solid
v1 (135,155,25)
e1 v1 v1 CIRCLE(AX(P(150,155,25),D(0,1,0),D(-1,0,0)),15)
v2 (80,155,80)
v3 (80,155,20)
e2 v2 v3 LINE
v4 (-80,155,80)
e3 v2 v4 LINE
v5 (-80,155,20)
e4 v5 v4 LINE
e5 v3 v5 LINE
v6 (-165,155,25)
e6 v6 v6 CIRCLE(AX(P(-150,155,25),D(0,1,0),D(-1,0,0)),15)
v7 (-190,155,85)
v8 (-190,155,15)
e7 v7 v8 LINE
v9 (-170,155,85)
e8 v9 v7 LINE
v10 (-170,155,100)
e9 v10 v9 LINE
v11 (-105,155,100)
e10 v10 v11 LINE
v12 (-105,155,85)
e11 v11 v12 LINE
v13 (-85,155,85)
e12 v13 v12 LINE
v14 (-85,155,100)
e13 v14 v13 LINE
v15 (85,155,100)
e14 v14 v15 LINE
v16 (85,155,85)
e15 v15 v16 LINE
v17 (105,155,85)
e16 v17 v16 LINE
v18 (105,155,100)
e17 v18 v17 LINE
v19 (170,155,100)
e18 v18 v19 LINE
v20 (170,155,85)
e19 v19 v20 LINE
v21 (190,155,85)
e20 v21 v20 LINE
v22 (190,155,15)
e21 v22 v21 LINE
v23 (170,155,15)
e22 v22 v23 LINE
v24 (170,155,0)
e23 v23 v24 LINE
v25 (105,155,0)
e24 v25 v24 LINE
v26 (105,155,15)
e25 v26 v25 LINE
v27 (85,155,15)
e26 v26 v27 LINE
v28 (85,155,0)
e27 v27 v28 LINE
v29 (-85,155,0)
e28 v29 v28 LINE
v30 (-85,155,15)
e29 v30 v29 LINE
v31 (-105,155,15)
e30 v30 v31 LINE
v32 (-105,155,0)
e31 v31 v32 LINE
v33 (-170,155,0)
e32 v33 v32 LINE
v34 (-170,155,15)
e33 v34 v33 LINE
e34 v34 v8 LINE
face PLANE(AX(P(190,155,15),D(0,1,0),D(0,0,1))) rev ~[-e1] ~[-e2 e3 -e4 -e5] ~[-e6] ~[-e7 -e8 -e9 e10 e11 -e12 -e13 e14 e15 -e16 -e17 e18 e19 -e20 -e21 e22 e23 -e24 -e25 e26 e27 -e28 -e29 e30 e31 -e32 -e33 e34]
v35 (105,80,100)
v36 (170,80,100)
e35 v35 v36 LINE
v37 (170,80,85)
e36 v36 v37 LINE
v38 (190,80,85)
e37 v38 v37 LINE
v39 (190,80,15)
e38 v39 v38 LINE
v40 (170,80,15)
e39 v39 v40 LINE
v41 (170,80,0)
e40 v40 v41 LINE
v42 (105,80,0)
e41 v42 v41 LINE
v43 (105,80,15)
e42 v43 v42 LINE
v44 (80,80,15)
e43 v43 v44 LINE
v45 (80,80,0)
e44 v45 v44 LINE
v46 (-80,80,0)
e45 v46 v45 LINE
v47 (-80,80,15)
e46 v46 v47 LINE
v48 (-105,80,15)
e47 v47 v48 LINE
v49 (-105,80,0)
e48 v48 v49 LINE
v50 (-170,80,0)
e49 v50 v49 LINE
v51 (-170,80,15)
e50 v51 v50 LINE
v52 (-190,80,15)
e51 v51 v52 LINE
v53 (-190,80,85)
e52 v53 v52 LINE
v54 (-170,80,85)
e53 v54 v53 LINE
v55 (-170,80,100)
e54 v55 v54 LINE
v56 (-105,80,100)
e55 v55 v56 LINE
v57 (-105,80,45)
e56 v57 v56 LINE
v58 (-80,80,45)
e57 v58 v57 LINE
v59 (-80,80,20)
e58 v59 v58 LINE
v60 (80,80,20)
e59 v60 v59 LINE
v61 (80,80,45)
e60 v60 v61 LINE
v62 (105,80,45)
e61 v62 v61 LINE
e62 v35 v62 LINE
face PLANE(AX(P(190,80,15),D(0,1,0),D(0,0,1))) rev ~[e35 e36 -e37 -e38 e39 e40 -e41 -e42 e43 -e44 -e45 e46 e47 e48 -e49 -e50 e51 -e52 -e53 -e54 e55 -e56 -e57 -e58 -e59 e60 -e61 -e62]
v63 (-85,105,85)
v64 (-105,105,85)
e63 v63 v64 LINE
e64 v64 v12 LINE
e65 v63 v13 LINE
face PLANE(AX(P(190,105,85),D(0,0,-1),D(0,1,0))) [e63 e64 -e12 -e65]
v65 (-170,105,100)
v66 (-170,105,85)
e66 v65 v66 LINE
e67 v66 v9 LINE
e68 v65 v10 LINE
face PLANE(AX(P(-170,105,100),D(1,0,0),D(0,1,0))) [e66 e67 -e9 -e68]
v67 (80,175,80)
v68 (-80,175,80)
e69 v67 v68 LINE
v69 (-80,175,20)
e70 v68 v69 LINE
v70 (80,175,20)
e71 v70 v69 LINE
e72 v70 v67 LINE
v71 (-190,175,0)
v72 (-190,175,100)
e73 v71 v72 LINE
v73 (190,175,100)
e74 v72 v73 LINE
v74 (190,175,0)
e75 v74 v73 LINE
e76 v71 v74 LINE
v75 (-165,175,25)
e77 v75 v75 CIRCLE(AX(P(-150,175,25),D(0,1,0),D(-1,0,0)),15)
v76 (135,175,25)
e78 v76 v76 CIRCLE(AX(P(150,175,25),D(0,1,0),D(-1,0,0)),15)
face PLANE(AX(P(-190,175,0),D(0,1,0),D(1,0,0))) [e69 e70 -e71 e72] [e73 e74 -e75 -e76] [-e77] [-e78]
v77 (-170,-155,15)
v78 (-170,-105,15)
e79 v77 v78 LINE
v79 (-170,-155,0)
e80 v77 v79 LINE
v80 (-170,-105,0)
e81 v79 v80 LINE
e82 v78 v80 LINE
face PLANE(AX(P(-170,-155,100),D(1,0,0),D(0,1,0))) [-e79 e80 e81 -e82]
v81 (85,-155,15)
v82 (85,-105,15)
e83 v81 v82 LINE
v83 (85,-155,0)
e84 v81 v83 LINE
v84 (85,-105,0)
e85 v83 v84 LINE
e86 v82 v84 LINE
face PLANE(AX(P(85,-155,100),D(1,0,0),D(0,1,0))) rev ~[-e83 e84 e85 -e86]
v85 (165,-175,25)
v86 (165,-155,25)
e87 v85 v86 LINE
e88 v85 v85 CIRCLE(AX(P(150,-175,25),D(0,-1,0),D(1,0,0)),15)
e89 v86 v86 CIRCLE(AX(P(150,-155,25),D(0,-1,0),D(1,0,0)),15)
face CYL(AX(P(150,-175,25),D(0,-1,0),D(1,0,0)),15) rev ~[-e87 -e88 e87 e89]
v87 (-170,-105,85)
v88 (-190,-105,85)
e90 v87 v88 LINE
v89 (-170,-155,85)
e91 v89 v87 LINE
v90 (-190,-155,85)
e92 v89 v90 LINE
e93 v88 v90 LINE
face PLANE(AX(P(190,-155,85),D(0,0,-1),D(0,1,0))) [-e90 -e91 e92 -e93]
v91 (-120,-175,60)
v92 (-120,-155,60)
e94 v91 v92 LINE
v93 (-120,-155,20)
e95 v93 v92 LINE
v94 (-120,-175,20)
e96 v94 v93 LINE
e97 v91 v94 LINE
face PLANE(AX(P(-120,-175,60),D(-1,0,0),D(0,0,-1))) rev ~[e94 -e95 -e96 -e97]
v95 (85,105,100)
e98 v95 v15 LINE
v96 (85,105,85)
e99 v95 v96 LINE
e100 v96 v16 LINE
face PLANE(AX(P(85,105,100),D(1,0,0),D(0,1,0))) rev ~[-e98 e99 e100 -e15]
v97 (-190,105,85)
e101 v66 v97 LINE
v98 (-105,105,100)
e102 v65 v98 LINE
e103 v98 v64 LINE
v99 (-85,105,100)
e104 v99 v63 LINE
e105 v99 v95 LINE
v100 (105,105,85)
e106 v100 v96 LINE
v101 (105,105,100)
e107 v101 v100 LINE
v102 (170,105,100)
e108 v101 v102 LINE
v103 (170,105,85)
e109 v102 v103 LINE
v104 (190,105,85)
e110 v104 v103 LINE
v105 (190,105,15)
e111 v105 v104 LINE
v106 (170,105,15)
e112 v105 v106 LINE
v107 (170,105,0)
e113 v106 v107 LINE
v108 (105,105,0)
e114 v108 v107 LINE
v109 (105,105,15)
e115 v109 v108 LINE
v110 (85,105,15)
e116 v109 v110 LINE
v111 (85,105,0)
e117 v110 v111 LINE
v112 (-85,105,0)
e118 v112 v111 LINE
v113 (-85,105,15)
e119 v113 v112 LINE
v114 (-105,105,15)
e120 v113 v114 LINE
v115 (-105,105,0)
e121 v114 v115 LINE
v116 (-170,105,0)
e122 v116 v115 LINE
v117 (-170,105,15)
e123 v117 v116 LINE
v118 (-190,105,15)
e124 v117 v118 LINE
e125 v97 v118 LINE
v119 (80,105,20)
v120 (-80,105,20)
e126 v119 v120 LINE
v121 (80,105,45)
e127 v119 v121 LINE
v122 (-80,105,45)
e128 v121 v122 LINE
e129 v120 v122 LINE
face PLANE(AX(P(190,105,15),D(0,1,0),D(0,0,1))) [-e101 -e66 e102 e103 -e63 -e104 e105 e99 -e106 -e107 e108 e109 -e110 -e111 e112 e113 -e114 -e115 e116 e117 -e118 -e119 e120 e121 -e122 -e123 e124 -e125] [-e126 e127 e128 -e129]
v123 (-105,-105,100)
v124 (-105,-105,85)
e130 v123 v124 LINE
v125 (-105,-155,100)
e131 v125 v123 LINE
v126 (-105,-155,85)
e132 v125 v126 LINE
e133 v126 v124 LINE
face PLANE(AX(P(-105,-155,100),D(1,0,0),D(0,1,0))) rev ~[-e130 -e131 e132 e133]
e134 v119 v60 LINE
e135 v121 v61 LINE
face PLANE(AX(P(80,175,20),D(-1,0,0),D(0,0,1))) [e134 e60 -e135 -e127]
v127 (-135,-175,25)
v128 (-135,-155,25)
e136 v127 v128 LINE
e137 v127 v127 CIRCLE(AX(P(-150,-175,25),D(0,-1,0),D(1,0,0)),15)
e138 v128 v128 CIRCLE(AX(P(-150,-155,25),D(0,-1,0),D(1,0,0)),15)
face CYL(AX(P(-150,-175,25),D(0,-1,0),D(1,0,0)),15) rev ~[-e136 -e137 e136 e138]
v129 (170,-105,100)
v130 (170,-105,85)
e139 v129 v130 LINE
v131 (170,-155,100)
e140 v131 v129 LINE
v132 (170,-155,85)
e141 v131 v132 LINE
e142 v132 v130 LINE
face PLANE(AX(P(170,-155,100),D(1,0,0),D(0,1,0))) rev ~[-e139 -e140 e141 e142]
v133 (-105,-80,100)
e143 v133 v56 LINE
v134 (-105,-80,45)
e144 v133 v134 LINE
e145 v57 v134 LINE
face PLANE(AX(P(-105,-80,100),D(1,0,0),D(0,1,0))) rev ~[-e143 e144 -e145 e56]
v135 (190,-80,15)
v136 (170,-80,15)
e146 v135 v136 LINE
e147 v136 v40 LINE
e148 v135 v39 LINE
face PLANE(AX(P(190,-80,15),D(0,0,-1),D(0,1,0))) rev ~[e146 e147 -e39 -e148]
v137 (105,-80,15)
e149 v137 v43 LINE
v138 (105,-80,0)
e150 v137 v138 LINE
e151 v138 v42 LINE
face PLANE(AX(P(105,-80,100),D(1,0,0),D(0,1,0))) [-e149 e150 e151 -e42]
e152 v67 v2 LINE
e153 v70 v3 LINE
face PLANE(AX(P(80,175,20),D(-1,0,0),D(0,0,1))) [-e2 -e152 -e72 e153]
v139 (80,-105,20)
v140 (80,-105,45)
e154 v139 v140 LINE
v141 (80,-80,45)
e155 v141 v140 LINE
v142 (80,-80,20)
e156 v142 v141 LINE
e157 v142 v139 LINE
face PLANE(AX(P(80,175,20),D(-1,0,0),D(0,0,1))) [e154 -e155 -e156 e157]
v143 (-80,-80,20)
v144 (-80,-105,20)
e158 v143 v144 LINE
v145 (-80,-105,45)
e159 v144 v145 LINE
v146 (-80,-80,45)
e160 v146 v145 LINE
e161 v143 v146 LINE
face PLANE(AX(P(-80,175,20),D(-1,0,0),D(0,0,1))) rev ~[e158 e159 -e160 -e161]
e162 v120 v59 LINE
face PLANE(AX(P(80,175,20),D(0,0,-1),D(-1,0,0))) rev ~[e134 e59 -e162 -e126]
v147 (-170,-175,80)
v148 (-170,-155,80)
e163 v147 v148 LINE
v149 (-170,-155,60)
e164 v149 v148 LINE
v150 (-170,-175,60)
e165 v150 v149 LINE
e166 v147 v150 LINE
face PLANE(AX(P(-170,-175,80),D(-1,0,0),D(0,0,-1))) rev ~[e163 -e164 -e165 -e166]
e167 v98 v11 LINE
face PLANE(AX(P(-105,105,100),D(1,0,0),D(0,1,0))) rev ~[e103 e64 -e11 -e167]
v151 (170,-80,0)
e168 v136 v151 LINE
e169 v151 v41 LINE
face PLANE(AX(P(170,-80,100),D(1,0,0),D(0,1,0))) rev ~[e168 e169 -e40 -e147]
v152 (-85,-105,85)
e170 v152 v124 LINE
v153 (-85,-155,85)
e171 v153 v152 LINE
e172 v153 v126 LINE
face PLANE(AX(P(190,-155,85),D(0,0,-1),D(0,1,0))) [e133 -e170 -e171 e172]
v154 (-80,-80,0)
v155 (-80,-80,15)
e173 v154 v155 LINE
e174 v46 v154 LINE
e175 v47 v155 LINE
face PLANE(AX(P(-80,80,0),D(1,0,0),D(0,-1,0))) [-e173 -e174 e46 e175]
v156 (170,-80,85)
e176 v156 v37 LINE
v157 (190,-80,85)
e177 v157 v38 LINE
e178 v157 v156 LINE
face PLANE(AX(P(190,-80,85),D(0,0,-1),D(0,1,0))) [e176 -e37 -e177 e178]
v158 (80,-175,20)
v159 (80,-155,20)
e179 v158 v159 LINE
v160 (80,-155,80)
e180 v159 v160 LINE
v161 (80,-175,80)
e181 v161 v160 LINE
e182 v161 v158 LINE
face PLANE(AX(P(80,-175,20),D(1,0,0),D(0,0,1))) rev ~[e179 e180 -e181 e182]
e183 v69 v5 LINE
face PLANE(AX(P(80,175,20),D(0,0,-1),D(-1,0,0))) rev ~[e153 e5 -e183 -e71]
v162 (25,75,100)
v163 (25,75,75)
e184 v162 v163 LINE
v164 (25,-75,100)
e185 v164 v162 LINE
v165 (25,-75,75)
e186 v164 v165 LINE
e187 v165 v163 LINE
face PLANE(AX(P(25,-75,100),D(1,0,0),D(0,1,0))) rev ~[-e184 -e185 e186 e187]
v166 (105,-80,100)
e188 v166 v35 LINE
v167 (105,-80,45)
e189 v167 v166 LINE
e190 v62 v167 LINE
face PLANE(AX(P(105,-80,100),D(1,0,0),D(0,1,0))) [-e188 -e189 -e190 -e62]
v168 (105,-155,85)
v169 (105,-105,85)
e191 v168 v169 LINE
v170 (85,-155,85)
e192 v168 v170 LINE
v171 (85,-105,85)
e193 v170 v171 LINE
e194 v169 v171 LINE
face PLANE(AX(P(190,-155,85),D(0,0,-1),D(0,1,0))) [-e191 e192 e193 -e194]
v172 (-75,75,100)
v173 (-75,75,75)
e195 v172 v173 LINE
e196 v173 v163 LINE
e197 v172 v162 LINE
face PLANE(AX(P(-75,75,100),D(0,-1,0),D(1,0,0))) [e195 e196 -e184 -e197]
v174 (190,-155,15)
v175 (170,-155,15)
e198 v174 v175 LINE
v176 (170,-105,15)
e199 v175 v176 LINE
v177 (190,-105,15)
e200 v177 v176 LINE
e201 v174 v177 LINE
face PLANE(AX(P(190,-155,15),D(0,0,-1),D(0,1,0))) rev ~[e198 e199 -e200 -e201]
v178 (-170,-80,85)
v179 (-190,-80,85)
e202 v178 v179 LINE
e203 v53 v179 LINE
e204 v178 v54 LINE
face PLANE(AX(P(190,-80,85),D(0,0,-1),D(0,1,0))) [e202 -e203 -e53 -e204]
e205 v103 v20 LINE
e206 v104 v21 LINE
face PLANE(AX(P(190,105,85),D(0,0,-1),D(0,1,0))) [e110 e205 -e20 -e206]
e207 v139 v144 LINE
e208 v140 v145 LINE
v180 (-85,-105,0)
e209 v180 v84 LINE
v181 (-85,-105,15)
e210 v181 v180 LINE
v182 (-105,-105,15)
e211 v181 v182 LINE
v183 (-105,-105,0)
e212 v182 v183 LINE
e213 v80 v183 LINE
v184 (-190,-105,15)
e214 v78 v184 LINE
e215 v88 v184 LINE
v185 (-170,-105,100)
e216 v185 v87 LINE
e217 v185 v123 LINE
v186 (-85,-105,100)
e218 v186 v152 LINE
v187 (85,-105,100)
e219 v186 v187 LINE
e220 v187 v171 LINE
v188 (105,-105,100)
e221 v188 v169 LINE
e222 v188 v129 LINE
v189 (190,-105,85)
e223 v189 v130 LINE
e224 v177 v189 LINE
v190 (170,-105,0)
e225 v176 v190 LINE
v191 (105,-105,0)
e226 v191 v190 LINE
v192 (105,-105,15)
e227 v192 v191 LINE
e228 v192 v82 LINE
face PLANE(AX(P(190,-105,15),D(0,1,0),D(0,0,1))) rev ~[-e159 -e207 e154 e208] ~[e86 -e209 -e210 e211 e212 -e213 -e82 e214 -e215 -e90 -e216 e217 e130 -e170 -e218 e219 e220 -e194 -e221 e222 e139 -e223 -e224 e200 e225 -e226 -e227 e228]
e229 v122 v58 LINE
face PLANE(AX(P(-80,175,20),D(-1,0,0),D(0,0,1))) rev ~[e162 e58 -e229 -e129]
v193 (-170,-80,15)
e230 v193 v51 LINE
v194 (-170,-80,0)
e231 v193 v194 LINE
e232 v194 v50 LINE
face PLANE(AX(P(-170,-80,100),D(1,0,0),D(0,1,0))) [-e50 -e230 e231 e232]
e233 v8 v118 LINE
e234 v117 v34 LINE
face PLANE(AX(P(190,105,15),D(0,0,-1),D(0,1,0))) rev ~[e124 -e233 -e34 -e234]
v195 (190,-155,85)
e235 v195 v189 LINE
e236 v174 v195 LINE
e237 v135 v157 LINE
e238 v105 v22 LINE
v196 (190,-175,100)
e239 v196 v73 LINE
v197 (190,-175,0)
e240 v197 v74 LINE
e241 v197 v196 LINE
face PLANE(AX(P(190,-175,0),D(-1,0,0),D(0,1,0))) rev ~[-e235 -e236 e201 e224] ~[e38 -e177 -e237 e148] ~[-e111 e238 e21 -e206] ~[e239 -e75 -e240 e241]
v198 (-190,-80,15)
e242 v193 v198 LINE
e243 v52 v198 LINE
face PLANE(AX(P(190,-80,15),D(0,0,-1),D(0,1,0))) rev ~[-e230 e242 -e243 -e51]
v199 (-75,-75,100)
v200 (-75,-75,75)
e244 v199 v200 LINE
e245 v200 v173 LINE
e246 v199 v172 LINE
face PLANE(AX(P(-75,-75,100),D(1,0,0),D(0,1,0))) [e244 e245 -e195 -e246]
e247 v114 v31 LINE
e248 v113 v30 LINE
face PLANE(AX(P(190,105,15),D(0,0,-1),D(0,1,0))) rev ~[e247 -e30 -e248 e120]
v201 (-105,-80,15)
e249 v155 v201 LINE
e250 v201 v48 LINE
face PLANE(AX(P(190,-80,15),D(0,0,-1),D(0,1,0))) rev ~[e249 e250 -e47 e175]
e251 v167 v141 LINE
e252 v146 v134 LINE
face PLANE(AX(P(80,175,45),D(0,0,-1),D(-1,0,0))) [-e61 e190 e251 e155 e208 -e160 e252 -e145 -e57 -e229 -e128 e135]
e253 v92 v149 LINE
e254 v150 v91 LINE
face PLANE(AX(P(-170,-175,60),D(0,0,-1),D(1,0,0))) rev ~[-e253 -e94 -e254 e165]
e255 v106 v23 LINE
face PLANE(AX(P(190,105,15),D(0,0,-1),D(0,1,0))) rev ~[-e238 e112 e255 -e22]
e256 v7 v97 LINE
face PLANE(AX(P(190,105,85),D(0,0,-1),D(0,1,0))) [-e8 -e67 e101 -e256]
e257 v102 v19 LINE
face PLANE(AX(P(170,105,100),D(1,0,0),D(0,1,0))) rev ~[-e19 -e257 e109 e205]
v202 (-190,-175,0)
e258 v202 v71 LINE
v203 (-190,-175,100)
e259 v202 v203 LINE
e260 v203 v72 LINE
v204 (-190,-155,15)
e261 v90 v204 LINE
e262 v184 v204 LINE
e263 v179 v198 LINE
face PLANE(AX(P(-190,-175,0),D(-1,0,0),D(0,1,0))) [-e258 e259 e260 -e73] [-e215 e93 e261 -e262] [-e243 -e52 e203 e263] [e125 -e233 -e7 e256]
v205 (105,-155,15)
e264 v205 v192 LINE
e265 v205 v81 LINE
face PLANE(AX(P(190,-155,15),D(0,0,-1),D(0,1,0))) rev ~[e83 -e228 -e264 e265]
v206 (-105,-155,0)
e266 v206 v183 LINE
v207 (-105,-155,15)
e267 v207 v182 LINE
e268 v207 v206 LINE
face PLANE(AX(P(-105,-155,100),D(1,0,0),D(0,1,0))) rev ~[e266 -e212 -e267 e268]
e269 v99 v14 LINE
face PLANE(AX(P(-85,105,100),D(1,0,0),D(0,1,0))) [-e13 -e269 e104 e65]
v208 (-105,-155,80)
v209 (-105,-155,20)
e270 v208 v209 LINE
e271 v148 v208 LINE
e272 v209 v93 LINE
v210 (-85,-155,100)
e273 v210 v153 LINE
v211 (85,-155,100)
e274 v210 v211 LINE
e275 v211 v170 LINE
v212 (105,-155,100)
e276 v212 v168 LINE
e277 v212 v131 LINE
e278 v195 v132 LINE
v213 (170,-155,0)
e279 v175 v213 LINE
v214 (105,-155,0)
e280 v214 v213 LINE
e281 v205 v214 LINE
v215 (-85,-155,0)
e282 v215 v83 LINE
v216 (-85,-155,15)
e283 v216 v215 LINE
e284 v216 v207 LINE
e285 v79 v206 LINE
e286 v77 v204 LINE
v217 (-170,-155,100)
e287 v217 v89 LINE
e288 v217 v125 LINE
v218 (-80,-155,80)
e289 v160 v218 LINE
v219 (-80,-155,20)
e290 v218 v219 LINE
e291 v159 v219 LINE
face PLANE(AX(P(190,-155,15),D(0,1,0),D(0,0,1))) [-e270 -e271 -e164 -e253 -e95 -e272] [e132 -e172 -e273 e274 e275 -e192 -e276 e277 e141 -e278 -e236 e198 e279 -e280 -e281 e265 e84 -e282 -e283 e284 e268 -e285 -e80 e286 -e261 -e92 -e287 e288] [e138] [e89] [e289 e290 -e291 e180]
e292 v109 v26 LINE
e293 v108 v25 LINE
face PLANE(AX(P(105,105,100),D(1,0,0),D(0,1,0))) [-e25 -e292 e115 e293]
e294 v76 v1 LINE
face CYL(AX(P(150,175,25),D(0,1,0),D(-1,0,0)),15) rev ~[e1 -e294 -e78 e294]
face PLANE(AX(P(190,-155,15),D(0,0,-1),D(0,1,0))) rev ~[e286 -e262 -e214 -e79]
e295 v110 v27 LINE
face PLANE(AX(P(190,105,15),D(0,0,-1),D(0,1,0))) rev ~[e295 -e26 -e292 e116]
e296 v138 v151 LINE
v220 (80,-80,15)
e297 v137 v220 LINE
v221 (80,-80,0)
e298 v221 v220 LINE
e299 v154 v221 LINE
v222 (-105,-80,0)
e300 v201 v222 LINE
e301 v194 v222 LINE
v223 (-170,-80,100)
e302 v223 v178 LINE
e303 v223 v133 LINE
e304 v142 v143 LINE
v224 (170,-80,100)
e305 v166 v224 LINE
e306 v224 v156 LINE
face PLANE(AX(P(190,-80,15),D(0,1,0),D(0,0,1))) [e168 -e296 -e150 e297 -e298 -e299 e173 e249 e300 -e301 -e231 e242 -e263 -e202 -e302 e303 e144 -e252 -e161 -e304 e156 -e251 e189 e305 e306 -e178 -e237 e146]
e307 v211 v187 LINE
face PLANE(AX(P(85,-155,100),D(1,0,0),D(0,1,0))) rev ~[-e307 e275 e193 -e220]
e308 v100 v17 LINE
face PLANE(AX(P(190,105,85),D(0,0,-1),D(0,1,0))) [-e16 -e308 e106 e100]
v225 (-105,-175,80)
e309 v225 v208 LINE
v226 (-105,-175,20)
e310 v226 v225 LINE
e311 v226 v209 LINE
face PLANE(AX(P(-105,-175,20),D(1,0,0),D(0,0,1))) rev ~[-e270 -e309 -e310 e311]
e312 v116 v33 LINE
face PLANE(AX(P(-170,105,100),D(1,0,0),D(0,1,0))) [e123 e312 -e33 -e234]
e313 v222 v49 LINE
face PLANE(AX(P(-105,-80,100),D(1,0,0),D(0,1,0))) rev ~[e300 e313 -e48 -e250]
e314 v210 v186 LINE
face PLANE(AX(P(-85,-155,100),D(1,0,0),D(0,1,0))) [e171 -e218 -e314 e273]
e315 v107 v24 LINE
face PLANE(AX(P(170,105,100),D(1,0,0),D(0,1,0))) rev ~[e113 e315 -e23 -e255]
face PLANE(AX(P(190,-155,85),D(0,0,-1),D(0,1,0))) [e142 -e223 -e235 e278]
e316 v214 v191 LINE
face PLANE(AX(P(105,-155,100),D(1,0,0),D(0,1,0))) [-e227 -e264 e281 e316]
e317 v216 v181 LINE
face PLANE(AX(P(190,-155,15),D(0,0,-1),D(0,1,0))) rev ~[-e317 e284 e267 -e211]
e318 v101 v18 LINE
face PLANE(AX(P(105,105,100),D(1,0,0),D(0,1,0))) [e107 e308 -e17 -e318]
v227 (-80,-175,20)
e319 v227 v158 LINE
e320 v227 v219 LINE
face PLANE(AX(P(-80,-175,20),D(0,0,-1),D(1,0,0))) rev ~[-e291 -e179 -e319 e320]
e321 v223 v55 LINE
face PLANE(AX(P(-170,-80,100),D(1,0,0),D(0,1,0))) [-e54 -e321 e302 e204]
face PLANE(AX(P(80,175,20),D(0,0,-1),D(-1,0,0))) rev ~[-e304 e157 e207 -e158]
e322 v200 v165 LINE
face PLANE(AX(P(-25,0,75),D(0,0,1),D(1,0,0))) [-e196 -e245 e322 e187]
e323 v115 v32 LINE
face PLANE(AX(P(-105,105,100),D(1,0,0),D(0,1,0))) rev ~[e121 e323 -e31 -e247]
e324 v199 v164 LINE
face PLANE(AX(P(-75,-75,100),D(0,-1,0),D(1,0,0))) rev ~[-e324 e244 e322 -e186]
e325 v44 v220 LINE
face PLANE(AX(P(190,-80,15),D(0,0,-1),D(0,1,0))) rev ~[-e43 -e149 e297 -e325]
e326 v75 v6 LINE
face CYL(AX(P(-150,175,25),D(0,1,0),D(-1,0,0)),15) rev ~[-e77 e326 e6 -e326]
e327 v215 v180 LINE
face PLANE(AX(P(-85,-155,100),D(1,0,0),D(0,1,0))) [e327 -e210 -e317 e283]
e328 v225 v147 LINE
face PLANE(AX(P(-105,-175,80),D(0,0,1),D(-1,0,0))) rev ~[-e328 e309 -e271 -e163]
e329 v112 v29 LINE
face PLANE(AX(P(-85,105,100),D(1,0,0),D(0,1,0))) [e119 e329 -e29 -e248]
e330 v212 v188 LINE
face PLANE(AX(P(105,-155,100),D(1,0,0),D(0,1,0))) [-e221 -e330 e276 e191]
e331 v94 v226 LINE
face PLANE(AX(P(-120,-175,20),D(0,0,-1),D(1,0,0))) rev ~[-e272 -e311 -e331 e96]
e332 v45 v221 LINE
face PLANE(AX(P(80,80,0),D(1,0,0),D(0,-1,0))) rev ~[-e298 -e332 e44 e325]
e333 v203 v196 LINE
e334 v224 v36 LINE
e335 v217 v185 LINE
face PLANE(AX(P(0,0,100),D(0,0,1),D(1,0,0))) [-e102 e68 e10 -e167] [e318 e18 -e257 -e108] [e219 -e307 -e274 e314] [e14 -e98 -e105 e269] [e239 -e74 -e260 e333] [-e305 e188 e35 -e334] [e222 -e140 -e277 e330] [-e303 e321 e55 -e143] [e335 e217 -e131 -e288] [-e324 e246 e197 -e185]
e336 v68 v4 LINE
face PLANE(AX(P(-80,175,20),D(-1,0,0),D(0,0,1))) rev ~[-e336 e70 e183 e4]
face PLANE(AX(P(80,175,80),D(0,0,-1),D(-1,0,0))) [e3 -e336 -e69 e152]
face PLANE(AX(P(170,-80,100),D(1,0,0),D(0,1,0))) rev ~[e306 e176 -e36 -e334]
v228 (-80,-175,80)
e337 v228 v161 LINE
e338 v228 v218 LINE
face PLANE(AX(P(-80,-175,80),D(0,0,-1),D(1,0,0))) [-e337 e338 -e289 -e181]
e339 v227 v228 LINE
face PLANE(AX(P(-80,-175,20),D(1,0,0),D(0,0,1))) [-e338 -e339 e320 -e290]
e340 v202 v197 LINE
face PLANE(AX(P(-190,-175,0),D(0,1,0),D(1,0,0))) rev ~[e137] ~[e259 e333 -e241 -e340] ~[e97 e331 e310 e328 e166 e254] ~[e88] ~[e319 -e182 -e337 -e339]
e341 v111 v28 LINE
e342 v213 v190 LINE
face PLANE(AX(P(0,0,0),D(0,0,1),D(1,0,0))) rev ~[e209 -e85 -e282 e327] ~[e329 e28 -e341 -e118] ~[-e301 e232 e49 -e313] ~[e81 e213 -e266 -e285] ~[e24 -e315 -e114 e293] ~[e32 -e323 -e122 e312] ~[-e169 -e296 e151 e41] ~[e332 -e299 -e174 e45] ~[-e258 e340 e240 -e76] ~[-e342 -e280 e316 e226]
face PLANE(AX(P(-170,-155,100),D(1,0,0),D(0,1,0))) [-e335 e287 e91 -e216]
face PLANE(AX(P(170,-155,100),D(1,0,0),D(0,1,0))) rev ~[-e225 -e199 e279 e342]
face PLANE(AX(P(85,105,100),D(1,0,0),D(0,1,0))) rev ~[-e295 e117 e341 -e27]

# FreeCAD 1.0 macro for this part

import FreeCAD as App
import Part
import Sketcher

doc = App.newDocument("Part")
body = doc.addObject("PartDesign::Body", "Body")

# Sketch on XY plane
sketch1 = doc.addObject("Sketcher::SketchObject", "Sketch")
body.addObject(sketch1)
sketch1.AttachmentSupport = (doc.XY_Plane, [""])
sketch1.MapMode = "FlatFace"
sketch1.addGeometry(Part.LineSegment(App.Vector(-190, 175, 0), App.Vector(-190, -175, 0)), False)
sketch1.addGeometry(Part.LineSegment(App.Vector(-190, -175, 0), App.Vector(190, -175, 0)), False)
sketch1.addGeometry(Part.LineSegment(App.Vector(190, -175, 0), App.Vector(190, 175, 0)), False)
sketch1.addGeometry(Part.LineSegment(App.Vector(190, 175, 0), App.Vector(-190, 175, 0)), False)
sketch1.addConstraint(Sketcher.Constraint("Coincident", 0, 2, 1, 1))
sketch1.addConstraint(Sketcher.Constraint("Coincident", 1, 2, 2, 1))
sketch1.addConstraint(Sketcher.Constraint("Coincident", 2, 2, 3, 1))
sketch1.addConstraint(Sketcher.Constraint("Coincident", 3, 2, 0, 1))
sketch1.addConstraint(Sketcher.Constraint("Vertical", 0))
sketch1.addConstraint(Sketcher.Constraint("Horizontal", 1))
sketch1.addConstraint(Sketcher.Constraint("Vertical", 2))
sketch1.addConstraint(Sketcher.Constraint("Horizontal", 3))
sketch1.addConstraint(Sketcher.Constraint("Symmetric", 0, 2, 2, 2, -1, 1))
sketch1.addConstraint(Sketcher.Constraint("DistanceX", 1, 1, 1, 2, 380.0))
sketch1.addConstraint(Sketcher.Constraint("DistanceY", 0, 2, 0, 1, 350.0))
pad1 = doc.addObject("PartDesign::Pad", "Pad")
body.addObject(pad1)
pad1.Profile = sketch1
pad1.Length = 100

# Sketch on XY plane
sketch2 = doc.addObject("Sketcher::SketchObject", "Sketch001")
body.addObject(sketch2)
sketch2.AttachmentSupport = (doc.XY_Plane, [""])
sketch2.MapMode = "FlatFace"
sketch2.AttachmentOffset = App.Placement(App.Vector(0, 0, 100), App.Rotation())
sketch2.addGeometry(Part.LineSegment(App.Vector(-85, 155, 0), App.Vector(-85, 105, 0)), False)
sketch2.addGeometry(Part.LineSegment(App.Vector(-85, 105, 0), App.Vector(85, 105, 0)), False)
sketch2.addGeometry(Part.LineSegment(App.Vector(85, 105, 0), App.Vector(85, 155, 0)), False)
sketch2.addGeometry(Part.LineSegment(App.Vector(85, 155, 0), App.Vector(-85, 155, 0)), False)
sketch2.addGeometry(Part.LineSegment(App.Vector(105, 155, 0), App.Vector(105, 105, 0)), False)
sketch2.addGeometry(Part.LineSegment(App.Vector(105, 105, 0), App.Vector(170, 105, 0)), False)
sketch2.addGeometry(Part.LineSegment(App.Vector(170, 105, 0), App.Vector(170, 155, 0)), False)
sketch2.addGeometry(Part.LineSegment(App.Vector(170, 155, 0), App.Vector(105, 155, 0)), False)
sketch2.addGeometry(Part.LineSegment(App.Vector(105, 80, 0), App.Vector(105, -80, 0)), False)
sketch2.addGeometry(Part.LineSegment(App.Vector(105, -80, 0), App.Vector(170, -80, 0)), False)
sketch2.addGeometry(Part.LineSegment(App.Vector(170, -80, 0), App.Vector(170, 80, 0)), False)
sketch2.addGeometry(Part.LineSegment(App.Vector(170, 80, 0), App.Vector(105, 80, 0)), False)
sketch2.addGeometry(Part.LineSegment(App.Vector(105, -105, 0), App.Vector(105, -155, 0)), False)
sketch2.addGeometry(Part.LineSegment(App.Vector(105, -155, 0), App.Vector(170, -155, 0)), False)
sketch2.addGeometry(Part.LineSegment(App.Vector(170, -155, 0), App.Vector(170, -105, 0)), False)
sketch2.addGeometry(Part.LineSegment(App.Vector(170, -105, 0), App.Vector(105, -105, 0)), False)
sketch2.addGeometry(Part.LineSegment(App.Vector(-85, -105, 0), App.Vector(-85, -155, 0)), False)
sketch2.addGeometry(Part.LineSegment(App.Vector(-85, -155, 0), App.Vector(85, -155, 0)), False)
sketch2.addGeometry(Part.LineSegment(App.Vector(85, -155, 0), App.Vector(85, -105, 0)), False)
sketch2.addGeometry(Part.LineSegment(App.Vector(85, -105, 0), App.Vector(-85, -105, 0)), False)
sketch2.addGeometry(Part.LineSegment(App.Vector(-170, -105, 0), App.Vector(-170, -155, 0)), False)
sketch2.addGeometry(Part.LineSegment(App.Vector(-170, -155, 0), App.Vector(-105, -155, 0)), False)
sketch2.addGeometry(Part.LineSegment(App.Vector(-105, -155, 0), App.Vector(-105, -105, 0)), False)
sketch2.addGeometry(Part.LineSegment(App.Vector(-105, -105, 0), App.Vector(-170, -105, 0)), False)
sketch2.addGeometry(Part.LineSegment(App.Vector(-170, 80, 0), App.Vector(-170, -80, 0)), False)
sketch2.addGeometry(Part.LineSegment(App.Vector(-170, -80, 0), App.Vector(-105, -80, 0)), False)
sketch2.addGeometry(Part.LineSegment(App.Vector(-105, -80, 0), App.Vector(-105, 80, 0)), False)
sketch2.addGeometry(Part.LineSegment(App.Vector(-105, 80, 0), App.Vector(-170, 80, 0)), False)
sketch2.addGeometry(Part.LineSegment(App.Vector(-170, 155, 0), App.Vector(-170, 105, 0)), False)
sketch2.addGeometry(Part.LineSegment(App.Vector(-170, 105, 0), App.Vector(-105, 105, 0)), False)
sketch2.addGeometry(Part.LineSegment(App.Vector(-105, 105, 0), App.Vector(-105, 155, 0)), False)
sketch2.addGeometry(Part.LineSegment(App.Vector(-105, 155, 0), App.Vector(-170, 155, 0)), False)
sketch2.addConstraint(Sketcher.Constraint("Coincident", 0, 2, 1, 1))
sketch2.addConstraint(Sketcher.Constraint("Coincident", 1, 2, 2, 1))
sketch2.addConstraint(Sketcher.Constraint("Coincident", 2, 2, 3, 1))
sketch2.addConstraint(Sketcher.Constraint("Coincident", 3, 2, 0, 1))
sketch2.addConstraint(Sketcher.Constraint("Coincident", 4, 2, 5, 1))
sketch2.addConstraint(Sketcher.Constraint("Coincident", 5, 2, 6, 1))
sketch2.addConstraint(Sketcher.Constraint("Coincident", 6, 2, 7, 1))
sketch2.addConstraint(Sketcher.Constraint("Coincident", 7, 2, 4, 1))
sketch2.addConstraint(Sketcher.Constraint("Coincident", 8, 2, 9, 1))
sketch2.addConstraint(Sketcher.Constraint("Coincident", 9, 2, 10, 1))
sketch2.addConstraint(Sketcher.Constraint("Coincident", 10, 2, 11, 1))
sketch2.addConstraint(Sketcher.Constraint("Coincident", 11, 2, 8, 1))
sketch2.addConstraint(Sketcher.Constraint("Coincident", 12, 2, 13, 1))
sketch2.addConstraint(Sketcher.Constraint("Coincident", 13, 2, 14, 1))
sketch2.addConstraint(Sketcher.Constraint("Coincident", 14, 2, 15, 1))
sketch2.addConstraint(Sketcher.Constraint("Coincident", 15, 2, 12, 1))
sketch2.addConstraint(Sketcher.Constraint("Coincident", 16, 2, 17, 1))
sketch2.addConstraint(Sketcher.Constraint("Coincident", 17, 2, 18, 1))
sketch2.addConstraint(Sketcher.Constraint("Coincident", 18, 2, 19, 1))
sketch2.addConstraint(Sketcher.Constraint("Coincident", 19, 2, 16, 1))
sketch2.addConstraint(Sketcher.Constraint("Coincident", 20, 2, 21, 1))
sketch2.addConstraint(Sketcher.Constraint("Coincident", 21, 2, 22, 1))
sketch2.addConstraint(Sketcher.Constraint("Coincident", 22, 2, 23, 1))
sketch2.addConstraint(Sketcher.Constraint("Coincident", 23, 2, 20, 1))
sketch2.addConstraint(Sketcher.Constraint("Coincident", 24, 2, 25, 1))
sketch2.addConstraint(Sketcher.Constraint("Coincident", 25, 2, 26, 1))
sketch2.addConstraint(Sketcher.Constraint("Coincident", 26, 2, 27, 1))
sketch2.addConstraint(Sketcher.Constraint("Coincident", 27, 2, 24, 1))
sketch2.addConstraint(Sketcher.Constraint("Coincident", 28, 2, 29, 1))
sketch2.addConstraint(Sketcher.Constraint("Coincident", 29, 2, 30, 1))
sketch2.addConstraint(Sketcher.Constraint("Coincident", 30, 2, 31, 1))
sketch2.addConstraint(Sketcher.Constraint("Coincident", 31, 2, 28, 1))
sketch2.addConstraint(Sketcher.Constraint("Vertical", 0))
sketch2.addConstraint(Sketcher.Constraint("Horizontal", 1))
sketch2.addConstraint(Sketcher.Constraint("Vertical", 2))
sketch2.addConstraint(Sketcher.Constraint("Horizontal", 3))
sketch2.addConstraint(Sketcher.Constraint("Vertical", 4))
sketch2.addConstraint(Sketcher.Constraint("Horizontal", 5))
sketch2.addConstraint(Sketcher.Constraint("Vertical", 6))
sketch2.addConstraint(Sketcher.Constraint("Horizontal", 7))
sketch2.addConstraint(Sketcher.Constraint("Vertical", 8))
sketch2.addConstraint(Sketcher.Constraint("Horizontal", 9))
sketch2.addConstraint(Sketcher.Constraint("Vertical", 10))
sketch2.addConstraint(Sketcher.Constraint("Horizontal", 11))
sketch2.addConstraint(Sketcher.Constraint("Vertical", 12))
sketch2.addConstraint(Sketcher.Constraint("Horizontal", 13))
sketch2.addConstraint(Sketcher.Constraint("Vertical", 14))
sketch2.addConstraint(Sketcher.Constraint("Horizontal", 15))
sketch2.addConstraint(Sketcher.Constraint("Vertical", 16))
sketch2.addConstraint(Sketcher.Constraint("Horizontal", 17))
sketch2.addConstraint(Sketcher.Constraint("Vertical", 18))
sketch2.addConstraint(Sketcher.Constraint("Horizontal", 19))
sketch2.addConstraint(Sketcher.Constraint("Vertical", 20))
sketch2.addConstraint(Sketcher.Constraint("Horizontal", 21))
sketch2.addConstraint(Sketcher.Constraint("Vertical", 22))
sketch2.addConstraint(Sketcher.Constraint("Horizontal", 23))
sketch2.addConstraint(Sketcher.Constraint("Vertical", 24))
sketch2.addConstraint(Sketcher.Constraint("Horizontal", 25))
sketch2.addConstraint(Sketcher.Constraint("Vertical", 26))
sketch2.addConstraint(Sketcher.Constraint("Horizontal", 27))
sketch2.addConstraint(Sketcher.Constraint("Vertical", 28))
sketch2.addConstraint(Sketcher.Constraint("Horizontal", 29))
sketch2.addConstraint(Sketcher.Constraint("Vertical", 30))
sketch2.addConstraint(Sketcher.Constraint("Horizontal", 31))
sketch2.addConstraint(Sketcher.Constraint("Symmetric", 2, 2, 16, 2, -1, 1))
sketch2.addConstraint(Sketcher.Constraint("Symmetric", 0, 2, 18, 2, -1, 1))
sketch2.addConstraint(Sketcher.Constraint("Symmetric", 6, 2, 20, 2, -1, 1))
sketch2.addConstraint(Sketcher.Constraint("Symmetric", 4, 2, 22, 2, -1, 1))
sketch2.addConstraint(Sketcher.Constraint("Symmetric", 10, 2, 24, 2, -1, 1))
sketch2.addConstraint(Sketcher.Constraint("Symmetric", 8, 2, 26, 2, -1, 1))
sketch2.addConstraint(Sketcher.Constraint("Symmetric", 14, 2, 28, 2, -1, 1))
sketch2.addConstraint(Sketcher.Constraint("Symmetric", 12, 2, 30, 2, -1, 1))
sketch2.addConstraint(Sketcher.Constraint("Symmetric", 13, 2, 20, 2, -2))
sketch2.addConstraint(Sketcher.Constraint("Symmetric", 15, 2, 22, 2, -2))
sketch2.addConstraint(Sketcher.Constraint("Horizontal", 1, 2, 4, 2))
sketch2.addConstraint(Sketcher.Constraint("Horizontal", 3, 2, 6, 2))
sketch2.addConstraint(Sketcher.Constraint("Horizontal", 9, 2, 24, 2))
sketch2.addConstraint(Sketcher.Constraint("Vertical", 7, 2, 8, 2))
sketch2.addConstraint(Sketcher.Constraint("Vertical", 6, 2, 9, 2))
sketch2.addConstraint(Sketcher.Constraint("Vertical", 3, 2, 16, 2))
sketch2.addConstraint(Sketcher.Constraint("DistanceX", 1, 1, 1, 2, 170.0))
sketch2.addConstraint(Sketcher.Constraint("DistanceX", 5, 1, 5, 2, 65.0))
sketch2.addConstraint(Sketcher.Constraint("DistanceY", 0, 2, 0, 1, 50.0))
sketch2.addConstraint(Sketcher.Constraint("DistanceY", 8, 2, 8, 1, 160.0))
sketch2.addConstraint(Sketcher.Constraint("DistanceY", -1, 1, 0, 2, 105.0))
sketch2.addConstraint(Sketcher.Constraint("DistanceX", -1, 1, 4, 2, 105.0))
pocket1 = doc.addObject("PartDesign::Pocket", "Pocket")
body.addObject(pocket1)
pocket1.Profile = sketch2
pocket1.Type = "ThroughAll"

# Sketch on YZ plane
sketch3 = doc.addObject("Sketcher::SketchObject", "Sketch002")
body.addObject(sketch3)
sketch3.AttachmentSupport = (doc.YZ_Plane, [""])
sketch3.MapMode = "FlatFace"
sketch3.AttachmentOffset = App.Placement(App.Vector(0, 0, 190), App.Rotation())
sketch3.addGeometry(Part.LineSegment(App.Vector(-155, 85, 0), App.Vector(-155, 15, 0)), False)
sketch3.addGeometry(Part.LineSegment(App.Vector(-155, 15, 0), App.Vector(-105, 15, 0)), False)
sketch3.addGeometry(Part.LineSegment(App.Vector(-105, 15, 0), App.Vector(-105, 85, 0)), False)
sketch3.addGeometry(Part.LineSegment(App.Vector(-105, 85, 0), App.Vector(-155, 85, 0)), False)
sketch3.addGeometry(Part.LineSegment(App.Vector(-80, 85, 0), App.Vector(-80, 15, 0)), False)
sketch3.addGeometry(Part.LineSegment(App.Vector(-80, 15, 0), App.Vector(80, 15, 0)), False)
sketch3.addGeometry(Part.LineSegment(App.Vector(80, 15, 0), App.Vector(80, 85, 0)), False)
sketch3.addGeometry(Part.LineSegment(App.Vector(80, 85, 0), App.Vector(-80, 85, 0)), False)
sketch3.addGeometry(Part.LineSegment(App.Vector(105, 85, 0), App.Vector(105, 15, 0)), False)
sketch3.addGeometry(Part.LineSegment(App.Vector(105, 15, 0), App.Vector(155, 15, 0)), False)
sketch3.addGeometry(Part.LineSegment(App.Vector(155, 15, 0), App.Vector(155, 85, 0)), False)
sketch3.addGeometry(Part.LineSegment(App.Vector(155, 85, 0), App.Vector(105, 85, 0)), False)
sketch3.addConstraint(Sketcher.Constraint("Coincident", 0, 2, 1, 1))
sketch3.addConstraint(Sketcher.Constraint("Coincident", 1, 2, 2, 1))
sketch3.addConstraint(Sketcher.Constraint("Coincident", 2, 2, 3, 1))
sketch3.addConstraint(Sketcher.Constraint("Coincident", 3, 2, 0, 1))
sketch3.addConstraint(Sketcher.Constraint("Coincident", 4, 2, 5, 1))
sketch3.addConstraint(Sketcher.Constraint("Coincident", 5, 2, 6, 1))
sketch3.addConstraint(Sketcher.Constraint("Coincident", 6, 2, 7, 1))
sketch3.addConstraint(Sketcher.Constraint("Coincident", 7, 2, 4, 1))
sketch3.addConstraint(Sketcher.Constraint("Coincident", 8, 2, 9, 1))
sketch3.addConstraint(Sketcher.Constraint("Coincident", 9, 2, 10, 1))
sketch3.addConstraint(Sketcher.Constraint("Coincident", 10, 2, 11, 1))
sketch3.addConstraint(Sketcher.Constraint("Coincident", 11, 2, 8, 1))
sketch3.addConstraint(Sketcher.Constraint("Vertical", 0))
sketch3.addConstraint(Sketcher.Constraint("Horizontal", 1))
sketch3.addConstraint(Sketcher.Constraint("Vertical", 2))
sketch3.addConstraint(Sketcher.Constraint("Horizontal", 3))
sketch3.addConstraint(Sketcher.Constraint("Vertical", 4))
sketch3.addConstraint(Sketcher.Constraint("Horizontal", 5))
sketch3.addConstraint(Sketcher.Constraint("Vertical", 6))
sketch3.addConstraint(Sketcher.Constraint("Horizontal", 7))
sketch3.addConstraint(Sketcher.Constraint("Vertical", 8))
sketch3.addConstraint(Sketcher.Constraint("Horizontal", 9))
sketch3.addConstraint(Sketcher.Constraint("Vertical", 10))
sketch3.addConstraint(Sketcher.Constraint("Horizontal", 11))
sketch3.addConstraint(Sketcher.Constraint("Symmetric", 1, 2, 8, 2, -2))
sketch3.addConstraint(Sketcher.Constraint("Symmetric", 3, 2, 10, 2, -2))
sketch3.addConstraint(Sketcher.Constraint("Horizontal", 1, 2, 4, 2))
sketch3.addConstraint(Sketcher.Constraint("Horizontal", 3, 2, 6, 2))
sketch3.addConstraint(Sketcher.Constraint("DistanceX", 1, 1, 1, 2, 50.0))
sketch3.addConstraint(Sketcher.Constraint("DistanceX", 5, 1, 5, 2, 160.0))
sketch3.addConstraint(Sketcher.Constraint("DistanceY", 0, 2, 0, 1, 70.0))
sketch3.addConstraint(Sketcher.Constraint("DistanceX", 0, 2, -1, 1, 155.0))
sketch3.addConstraint(Sketcher.Constraint("DistanceY", -1, 1, 0, 2, 15.0))
sketch3.addConstraint(Sketcher.Constraint("DistanceX", 4, 2, -1, 1, 80.0))
pocket2 = doc.addObject("PartDesign::Pocket", "Pocket001")
body.addObject(pocket2)
pocket2.Profile = sketch3
pocket2.Type = "ThroughAll"

# Sketch on XZ plane
sketch4 = doc.addObject("Sketcher::SketchObject", "Sketch003")
body.addObject(sketch4)
sketch4.AttachmentSupport = (doc.XZ_Plane, [""])
sketch4.MapMode = "FlatFace"
sketch4.AttachmentOffset = App.Placement(App.Vector(0, 0, 175), App.Rotation())
sketch4.addGeometry(Part.Circle(App.Vector(-150, 25, 0), App.Vector(0, 0, 1), 15), False)
sketch4.addGeometry(Part.Circle(App.Vector(150, 25, 0), App.Vector(0, 0, 1), 15), False)
sketch4.addConstraint(Sketcher.Constraint("Equal", 0, 1))
sketch4.addConstraint(Sketcher.Constraint("Symmetric", 0, 3, 1, 3, -2))
sketch4.addConstraint(Sketcher.Constraint("Diameter", 0, 30.0))
sketch4.addConstraint(Sketcher.Constraint("DistanceX", 0, 3, -1, 1, 150.0))
sketch4.addConstraint(Sketcher.Constraint("DistanceY", -1, 1, 0, 3, 25.0))
pocket3 = doc.addObject("PartDesign::Pocket", "Pocket002")
body.addObject(pocket3)
pocket3.Profile = sketch4
pocket3.Length = 25

# Sketch on XZ plane
sketch5 = doc.addObject("Sketcher::SketchObject", "Sketch004")
body.addObject(sketch5)
sketch5.AttachmentSupport = (doc.XZ_Plane, [""])
sketch5.MapMode = "FlatFace"
sketch5.AttachmentOffset = App.Placement(App.Vector(0, 0, -175), App.Rotation())
sketch5.addGeometry(Part.Circle(App.Vector(150, 25, 0), App.Vector(0, 0, 1), 15), False)
sketch5.addGeometry(Part.Circle(App.Vector(-150, 25, 0), App.Vector(0, 0, 1), 15), False)
sketch5.addConstraint(Sketcher.Constraint("Equal", 0, 1))
sketch5.addConstraint(Sketcher.Constraint("Symmetric", 0, 3, 1, 3, -2))
sketch5.addConstraint(Sketcher.Constraint("Diameter", 0, 30.0))
sketch5.addConstraint(Sketcher.Constraint("DistanceX", -1, 1, 0, 3, 150.0))
sketch5.addConstraint(Sketcher.Constraint("DistanceY", -1, 1, 0, 3, 25.0))
pocket4 = doc.addObject("PartDesign::Pocket", "Pocket003")
body.addObject(pocket4)
pocket4.Profile = sketch5
pocket4.Length = 25
pocket4.Reversed = True

# Sketch on XZ plane
sketch6 = doc.addObject("Sketcher::SketchObject", "Sketch005")
body.addObject(sketch6)
sketch6.AttachmentSupport = (doc.XZ_Plane, [""])
sketch6.MapMode = "FlatFace"
sketch6.AttachmentOffset = App.Placement(App.Vector(0, 0, -175), App.Rotation())
sketch6.addGeometry(Part.LineSegment(App.Vector(80, 80, 0), App.Vector(80, 20, 0)), False)
sketch6.addGeometry(Part.LineSegment(App.Vector(80, 20, 0), App.Vector(-80, 20, 0)), False)
sketch6.addGeometry(Part.LineSegment(App.Vector(-80, 20, 0), App.Vector(-80, 80, 0)), False)
sketch6.addGeometry(Part.LineSegment(App.Vector(-80, 80, 0), App.Vector(80, 80, 0)), False)
sketch6.addConstraint(Sketcher.Constraint("Coincident", 0, 2, 1, 1))
sketch6.addConstraint(Sketcher.Constraint("Coincident", 1, 2, 2, 1))
sketch6.addConstraint(Sketcher.Constraint("Coincident", 2, 2, 3, 1))
sketch6.addConstraint(Sketcher.Constraint("Coincident", 3, 2, 0, 1))
sketch6.addConstraint(Sketcher.Constraint("Vertical", 0))
sketch6.addConstraint(Sketcher.Constraint("Horizontal", 1))
sketch6.addConstraint(Sketcher.Constraint("Vertical", 2))
sketch6.addConstraint(Sketcher.Constraint("Horizontal", 3))
sketch6.addConstraint(Sketcher.Constraint("DistanceX", 1, 2, 1, 1, 160.0))
sketch6.addConstraint(Sketcher.Constraint("DistanceY", 0, 2, 0, 1, 60.0))
sketch6.addConstraint(Sketcher.Constraint("DistanceX", -1, 1, 0, 2, 80.0))
sketch6.addConstraint(Sketcher.Constraint("DistanceY", -1, 1, 0, 2, 20.0))
pocket5 = doc.addObject("PartDesign::Pocket", "Pocket004")
body.addObject(pocket5)
pocket5.Profile = sketch6
pocket5.Length = 25
pocket5.Reversed = True

# Sketch on XZ plane
sketch7 = doc.addObject("Sketcher::SketchObject", "Sketch006")
body.addObject(sketch7)
sketch7.AttachmentSupport = (doc.XZ_Plane, [""])
sketch7.MapMode = "FlatFace"
sketch7.AttachmentOffset = App.Placement(App.Vector(0, 0, 175), App.Rotation())
sketch7.addGeometry(Part.LineSegment(App.Vector(-80, 80, 0), App.Vector(-80, 20, 0)), False)
sketch7.addGeometry(Part.LineSegment(App.Vector(-80, 20, 0), App.Vector(80, 20, 0)), False)
sketch7.addGeometry(Part.LineSegment(App.Vector(80, 20, 0), App.Vector(80, 80, 0)), False)
sketch7.addGeometry(Part.LineSegment(App.Vector(80, 80, 0), App.Vector(-80, 80, 0)), False)
sketch7.addConstraint(Sketcher.Constraint("Coincident", 0, 2, 1, 1))
sketch7.addConstraint(Sketcher.Constraint("Coincident", 1, 2, 2, 1))
sketch7.addConstraint(Sketcher.Constraint("Coincident", 2, 2, 3, 1))
sketch7.addConstraint(Sketcher.Constraint("Coincident", 3, 2, 0, 1))
sketch7.addConstraint(Sketcher.Constraint("Vertical", 0))
sketch7.addConstraint(Sketcher.Constraint("Horizontal", 1))
sketch7.addConstraint(Sketcher.Constraint("Vertical", 2))
sketch7.addConstraint(Sketcher.Constraint("Horizontal", 3))
sketch7.addConstraint(Sketcher.Constraint("DistanceX", 1, 1, 1, 2, 160.0))
sketch7.addConstraint(Sketcher.Constraint("DistanceY", 0, 2, 0, 1, 60.0))
sketch7.addConstraint(Sketcher.Constraint("DistanceX", 0, 2, -1, 1, 80.0))
sketch7.addConstraint(Sketcher.Constraint("DistanceY", -1, 1, 0, 2, 20.0))
pocket6 = doc.addObject("PartDesign::Pocket", "Pocket005")
body.addObject(pocket6)
pocket6.Profile = sketch7
pocket6.Length = 25

# Sketch on XY plane
sketch8 = doc.addObject("Sketcher::SketchObject", "Sketch007")
body.addObject(sketch8)
sketch8.AttachmentSupport = (doc.XY_Plane, [""])
sketch8.MapMode = "FlatFace"
sketch8.addGeometry(Part.LineSegment(App.Vector(-80, -80, 0), App.Vector(-80, 80, 0)), False)
sketch8.addGeometry(Part.LineSegment(App.Vector(-80, 80, 0), App.Vector(80, 80, 0)), False)
sketch8.addGeometry(Part.LineSegment(App.Vector(80, 80, 0), App.Vector(80, -80, 0)), False)
sketch8.addGeometry(Part.LineSegment(App.Vector(80, -80, 0), App.Vector(-80, -80, 0)), False)
sketch8.addConstraint(Sketcher.Constraint("Coincident", 0, 2, 1, 1))
sketch8.addConstraint(Sketcher.Constraint("Coincident", 1, 2, 2, 1))
sketch8.addConstraint(Sketcher.Constraint("Coincident", 2, 2, 3, 1))
sketch8.addConstraint(Sketcher.Constraint("Coincident", 3, 2, 0, 1))
sketch8.addConstraint(Sketcher.Constraint("Vertical", 0))
sketch8.addConstraint(Sketcher.Constraint("Horizontal", 1))
sketch8.addConstraint(Sketcher.Constraint("Vertical", 2))
sketch8.addConstraint(Sketcher.Constraint("Horizontal", 3))
sketch8.addConstraint(Sketcher.Constraint("Symmetric", 0, 2, 2, 2, -1, 1))
sketch8.addConstraint(Sketcher.Constraint("Equal", 3, 0))
sketch8.addConstraint(Sketcher.Constraint("DistanceX", 1, 1, 1, 2, 160.0))
pocket7 = doc.addObject("PartDesign::Pocket", "Pocket006")
body.addObject(pocket7)
pocket7.Profile = sketch8
pocket7.Length = 25
pocket7.Reversed = True

# Sketch on XY plane
sketch9 = doc.addObject("Sketcher::SketchObject", "Sketch008")
body.addObject(sketch9)
sketch9.AttachmentSupport = (doc.XY_Plane, [""])
sketch9.MapMode = "FlatFace"
sketch9.AttachmentOffset = App.Placement(App.Vector(0, 0, 85), App.Rotation())
sketch9.addGeometry(Part.LineSegment(App.Vector(-105, -105, 0), App.Vector(-105, 105, 0)), False)
sketch9.addGeometry(Part.LineSegment(App.Vector(-105, 105, 0), App.Vector(105, 105, 0)), False)
sketch9.addGeometry(Part.LineSegment(App.Vector(105, 105, 0), App.Vector(105, -105, 0)), False)
sketch9.addGeometry(Part.LineSegment(App.Vector(105, -105, 0), App.Vector(-105, -105, 0)), False)
sketch9.addConstraint(Sketcher.Constraint("Coincident", 0, 2, 1, 1))
sketch9.addConstraint(Sketcher.Constraint("Coincident", 1, 2, 2, 1))
sketch9.addConstraint(Sketcher.Constraint("Coincident", 2, 2, 3, 1))
sketch9.addConstraint(Sketcher.Constraint("Coincident", 3, 2, 0, 1))
sketch9.addConstraint(Sketcher.Constraint("Vertical", 0))
sketch9.addConstraint(Sketcher.Constraint("Horizontal", 1))
sketch9.addConstraint(Sketcher.Constraint("Vertical", 2))
sketch9.addConstraint(Sketcher.Constraint("Horizontal", 3))
sketch9.addConstraint(Sketcher.Constraint("Symmetric", 0, 2, 2, 2, -1, 1))
sketch9.addConstraint(Sketcher.Constraint("Equal", 3, 0))
sketch9.addConstraint(Sketcher.Constraint("DistanceX", 1, 1, 1, 2, 210.0))
pad2 = doc.addObject("PartDesign::Pad", "Pad001")
body.addObject(pad2)
pad2.Profile = sketch9
pad2.Length = 40
pad2.Reversed = True

# Sketch on XY plane
sketch10 = doc.addObject("Sketcher::SketchObject", "Sketch009")
body.addObject(sketch10)
sketch10.AttachmentSupport = (doc.XY_Plane, [""])
sketch10.MapMode = "FlatFace"
sketch10.AttachmentOffset = App.Placement(App.Vector(0, 0, 100), App.Rotation())
sketch10.addGeometry(Part.LineSegment(App.Vector(-75, 75, 0), App.Vector(-75, -75, 0)), False)
sketch10.addGeometry(Part.LineSegment(App.Vector(-75, -75, 0), App.Vector(25, -75, 0)), False)
sketch10.addGeometry(Part.LineSegment(App.Vector(25, -75, 0), App.Vector(25, 75, 0)), False)
sketch10.addGeometry(Part.LineSegment(App.Vector(25, 75, 0), App.Vector(-75, 75, 0)), False)
sketch10.addConstraint(Sketcher.Constraint("Coincident", 0, 2, 1, 1))
sketch10.addConstraint(Sketcher.Constraint("Coincident", 1, 2, 2, 1))
sketch10.addConstraint(Sketcher.Constraint("Coincident", 2, 2, 3, 1))
sketch10.addConstraint(Sketcher.Constraint("Coincident", 3, 2, 0, 1))
sketch10.addConstraint(Sketcher.Constraint("Vertical", 0))
sketch10.addConstraint(Sketcher.Constraint("Horizontal", 1))
sketch10.addConstraint(Sketcher.Constraint("Vertical", 2))
sketch10.addConstraint(Sketcher.Constraint("Horizontal", 3))
sketch10.addConstraint(Sketcher.Constraint("DistanceX", 1, 1, 1, 2, 100.0))
sketch10.addConstraint(Sketcher.Constraint("DistanceY", 0, 2, 0, 1, 150.0))
sketch10.addConstraint(Sketcher.Constraint("DistanceX", 0, 2, -1, 1, 75.0))
sketch10.addConstraint(Sketcher.Constraint("DistanceY", 0, 2, -1, 1, 75.0))
pocket8 = doc.addObject("PartDesign::Pocket", "Pocket007")
body.addObject(pocket8)
pocket8.Profile = sketch10
pocket8.Length = 25

# Sketch on XZ plane
sketch11 = doc.addObject("Sketcher::SketchObject", "Sketch010")
body.addObject(sketch11)
sketch11.AttachmentSupport = (doc.XZ_Plane, [""])
sketch11.MapMode = "FlatFace"
sketch11.AttachmentOffset = App.Placement(App.Vector(0, 0, -175), App.Rotation())
sketch11.addGeometry(Part.LineSegment(App.Vector(80, 45, 0), App.Vector(80, 20, 0)), False)
sketch11.addGeometry(Part.LineSegment(App.Vector(80, 20, 0), App.Vector(-80, 20, 0)), False)
sketch11.addGeometry(Part.LineSegment(App.Vector(-80, 20, 0), App.Vector(-80, 45, 0)), False)
sketch11.addGeometry(Part.LineSegment(App.Vector(-80, 45, 0), App.Vector(80, 45, 0)), False)
sketch11.addConstraint(Sketcher.Constraint("Coincident", 0, 2, 1, 1))
sketch11.addConstraint(Sketcher.Constraint("Coincident", 1, 2, 2, 1))
sketch11.addConstraint(Sketcher.Constraint("Coincident", 2, 2, 3, 1))
sketch11.addConstraint(Sketcher.Constraint("Coincident", 3, 2, 0, 1))
sketch11.addConstraint(Sketcher.Constraint("Vertical", 0))
sketch11.addConstraint(Sketcher.Constraint("Horizontal", 1))
sketch11.addConstraint(Sketcher.Constraint("Vertical", 2))
sketch11.addConstraint(Sketcher.Constraint("Horizontal", 3))
sketch11.addConstraint(Sketcher.Constraint("DistanceX", 1, 2, 1, 1, 160.0))
sketch11.addConstraint(Sketcher.Constraint("DistanceY", 0, 2, 0, 1, 25.0))
sketch11.addConstraint(Sketcher.Constraint("DistanceX", -1, 1, 0, 2, 80.0))
sketch11.addConstraint(Sketcher.Constraint("DistanceY", -1, 1, 0, 2, 20.0))
pocket9 = doc.addObject("PartDesign::Pocket", "Pocket008")
body.addObject(pocket9)
pocket9.Profile = sketch11
pocket9.Type = "ThroughAll"
pocket9.Reversed = True

# Sketch on XZ plane
sketch12 = doc.addObject("Sketcher::SketchObject", "Sketch011")
body.addObject(sketch12)
sketch12.AttachmentSupport = (doc.XZ_Plane, [""])
sketch12.MapMode = "FlatFace"
sketch12.AttachmentOffset = App.Placement(App.Vector(0, 0, 175), App.Rotation())
sketch12.addGeometry(Part.LineSegment(App.Vector(-105, 80, 0), App.Vector(-170, 80, 0)), False)
sketch12.addGeometry(Part.LineSegment(App.Vector(-170, 80, 0), App.Vector(-170, 60, 0)), False)
sketch12.addGeometry(Part.LineSegment(App.Vector(-170, 60, 0), App.Vector(-120, 60, 0)), False)
sketch12.addGeometry(Part.LineSegment(App.Vector(-120, 60, 0), App.Vector(-120, 20, 0)), False)
sketch12.addGeometry(Part.LineSegment(App.Vector(-120, 20, 0), App.Vector(-105, 20, 0)), False)
sketch12.addGeometry(Part.LineSegment(App.Vector(-105, 20, 0), App.Vector(-105, 80, 0)), False)
sketch12.addConstraint(Sketcher.Constraint("Coincident", 0, 2, 1, 1))
sketch12.addConstraint(Sketcher.Constraint("Coincident", 1, 2, 2, 1))
sketch12.addConstraint(Sketcher.Constraint("Coincident", 2, 2, 3, 1))
sketch12.addConstraint(Sketcher.Constraint("Coincident", 3, 2, 4, 1))
sketch12.addConstraint(Sketcher.Constraint("Coincident", 4, 2, 5, 1))
sketch12.addConstraint(Sketcher.Constraint("Coincident", 5, 2, 0, 1))
sketch12.addConstraint(Sketcher.Constraint("Horizontal", 0))
sketch12.addConstraint(Sketcher.Constraint("Vertical", 1))
sketch12.addConstraint(Sketcher.Constraint("Horizontal", 2))
sketch12.addConstraint(Sketcher.Constraint("Vertical", 3))
sketch12.addConstraint(Sketcher.Constraint("Horizontal", 4))
sketch12.addConstraint(Sketcher.Constraint("Vertical", 5))
sketch12.addConstraint(Sketcher.Constraint("DistanceX", 0, 2, 0, 1, 65.0))
sketch12.addConstraint(Sketcher.Constraint("DistanceX", 2, 1, 2, 2, 50.0))
sketch12.addConstraint(Sketcher.Constraint("DistanceY", 1, 2, 1, 1, 20.0))
sketch12.addConstraint(Sketcher.Constraint("DistanceY", 3, 2, 3, 1, 40.0))
sketch12.addConstraint(Sketcher.Constraint("DistanceX", 0, 2, -1, 1, 170.0))
sketch12.addConstraint(Sketcher.Constraint("DistanceY", -1, 1, 0, 2, 80.0))
pocket10 = doc.addObject("PartDesign::Pocket", "Pocket009")
body.addObject(pocket10)
pocket10.Profile = sketch12
pocket10.Length = 25

doc.recompute()
